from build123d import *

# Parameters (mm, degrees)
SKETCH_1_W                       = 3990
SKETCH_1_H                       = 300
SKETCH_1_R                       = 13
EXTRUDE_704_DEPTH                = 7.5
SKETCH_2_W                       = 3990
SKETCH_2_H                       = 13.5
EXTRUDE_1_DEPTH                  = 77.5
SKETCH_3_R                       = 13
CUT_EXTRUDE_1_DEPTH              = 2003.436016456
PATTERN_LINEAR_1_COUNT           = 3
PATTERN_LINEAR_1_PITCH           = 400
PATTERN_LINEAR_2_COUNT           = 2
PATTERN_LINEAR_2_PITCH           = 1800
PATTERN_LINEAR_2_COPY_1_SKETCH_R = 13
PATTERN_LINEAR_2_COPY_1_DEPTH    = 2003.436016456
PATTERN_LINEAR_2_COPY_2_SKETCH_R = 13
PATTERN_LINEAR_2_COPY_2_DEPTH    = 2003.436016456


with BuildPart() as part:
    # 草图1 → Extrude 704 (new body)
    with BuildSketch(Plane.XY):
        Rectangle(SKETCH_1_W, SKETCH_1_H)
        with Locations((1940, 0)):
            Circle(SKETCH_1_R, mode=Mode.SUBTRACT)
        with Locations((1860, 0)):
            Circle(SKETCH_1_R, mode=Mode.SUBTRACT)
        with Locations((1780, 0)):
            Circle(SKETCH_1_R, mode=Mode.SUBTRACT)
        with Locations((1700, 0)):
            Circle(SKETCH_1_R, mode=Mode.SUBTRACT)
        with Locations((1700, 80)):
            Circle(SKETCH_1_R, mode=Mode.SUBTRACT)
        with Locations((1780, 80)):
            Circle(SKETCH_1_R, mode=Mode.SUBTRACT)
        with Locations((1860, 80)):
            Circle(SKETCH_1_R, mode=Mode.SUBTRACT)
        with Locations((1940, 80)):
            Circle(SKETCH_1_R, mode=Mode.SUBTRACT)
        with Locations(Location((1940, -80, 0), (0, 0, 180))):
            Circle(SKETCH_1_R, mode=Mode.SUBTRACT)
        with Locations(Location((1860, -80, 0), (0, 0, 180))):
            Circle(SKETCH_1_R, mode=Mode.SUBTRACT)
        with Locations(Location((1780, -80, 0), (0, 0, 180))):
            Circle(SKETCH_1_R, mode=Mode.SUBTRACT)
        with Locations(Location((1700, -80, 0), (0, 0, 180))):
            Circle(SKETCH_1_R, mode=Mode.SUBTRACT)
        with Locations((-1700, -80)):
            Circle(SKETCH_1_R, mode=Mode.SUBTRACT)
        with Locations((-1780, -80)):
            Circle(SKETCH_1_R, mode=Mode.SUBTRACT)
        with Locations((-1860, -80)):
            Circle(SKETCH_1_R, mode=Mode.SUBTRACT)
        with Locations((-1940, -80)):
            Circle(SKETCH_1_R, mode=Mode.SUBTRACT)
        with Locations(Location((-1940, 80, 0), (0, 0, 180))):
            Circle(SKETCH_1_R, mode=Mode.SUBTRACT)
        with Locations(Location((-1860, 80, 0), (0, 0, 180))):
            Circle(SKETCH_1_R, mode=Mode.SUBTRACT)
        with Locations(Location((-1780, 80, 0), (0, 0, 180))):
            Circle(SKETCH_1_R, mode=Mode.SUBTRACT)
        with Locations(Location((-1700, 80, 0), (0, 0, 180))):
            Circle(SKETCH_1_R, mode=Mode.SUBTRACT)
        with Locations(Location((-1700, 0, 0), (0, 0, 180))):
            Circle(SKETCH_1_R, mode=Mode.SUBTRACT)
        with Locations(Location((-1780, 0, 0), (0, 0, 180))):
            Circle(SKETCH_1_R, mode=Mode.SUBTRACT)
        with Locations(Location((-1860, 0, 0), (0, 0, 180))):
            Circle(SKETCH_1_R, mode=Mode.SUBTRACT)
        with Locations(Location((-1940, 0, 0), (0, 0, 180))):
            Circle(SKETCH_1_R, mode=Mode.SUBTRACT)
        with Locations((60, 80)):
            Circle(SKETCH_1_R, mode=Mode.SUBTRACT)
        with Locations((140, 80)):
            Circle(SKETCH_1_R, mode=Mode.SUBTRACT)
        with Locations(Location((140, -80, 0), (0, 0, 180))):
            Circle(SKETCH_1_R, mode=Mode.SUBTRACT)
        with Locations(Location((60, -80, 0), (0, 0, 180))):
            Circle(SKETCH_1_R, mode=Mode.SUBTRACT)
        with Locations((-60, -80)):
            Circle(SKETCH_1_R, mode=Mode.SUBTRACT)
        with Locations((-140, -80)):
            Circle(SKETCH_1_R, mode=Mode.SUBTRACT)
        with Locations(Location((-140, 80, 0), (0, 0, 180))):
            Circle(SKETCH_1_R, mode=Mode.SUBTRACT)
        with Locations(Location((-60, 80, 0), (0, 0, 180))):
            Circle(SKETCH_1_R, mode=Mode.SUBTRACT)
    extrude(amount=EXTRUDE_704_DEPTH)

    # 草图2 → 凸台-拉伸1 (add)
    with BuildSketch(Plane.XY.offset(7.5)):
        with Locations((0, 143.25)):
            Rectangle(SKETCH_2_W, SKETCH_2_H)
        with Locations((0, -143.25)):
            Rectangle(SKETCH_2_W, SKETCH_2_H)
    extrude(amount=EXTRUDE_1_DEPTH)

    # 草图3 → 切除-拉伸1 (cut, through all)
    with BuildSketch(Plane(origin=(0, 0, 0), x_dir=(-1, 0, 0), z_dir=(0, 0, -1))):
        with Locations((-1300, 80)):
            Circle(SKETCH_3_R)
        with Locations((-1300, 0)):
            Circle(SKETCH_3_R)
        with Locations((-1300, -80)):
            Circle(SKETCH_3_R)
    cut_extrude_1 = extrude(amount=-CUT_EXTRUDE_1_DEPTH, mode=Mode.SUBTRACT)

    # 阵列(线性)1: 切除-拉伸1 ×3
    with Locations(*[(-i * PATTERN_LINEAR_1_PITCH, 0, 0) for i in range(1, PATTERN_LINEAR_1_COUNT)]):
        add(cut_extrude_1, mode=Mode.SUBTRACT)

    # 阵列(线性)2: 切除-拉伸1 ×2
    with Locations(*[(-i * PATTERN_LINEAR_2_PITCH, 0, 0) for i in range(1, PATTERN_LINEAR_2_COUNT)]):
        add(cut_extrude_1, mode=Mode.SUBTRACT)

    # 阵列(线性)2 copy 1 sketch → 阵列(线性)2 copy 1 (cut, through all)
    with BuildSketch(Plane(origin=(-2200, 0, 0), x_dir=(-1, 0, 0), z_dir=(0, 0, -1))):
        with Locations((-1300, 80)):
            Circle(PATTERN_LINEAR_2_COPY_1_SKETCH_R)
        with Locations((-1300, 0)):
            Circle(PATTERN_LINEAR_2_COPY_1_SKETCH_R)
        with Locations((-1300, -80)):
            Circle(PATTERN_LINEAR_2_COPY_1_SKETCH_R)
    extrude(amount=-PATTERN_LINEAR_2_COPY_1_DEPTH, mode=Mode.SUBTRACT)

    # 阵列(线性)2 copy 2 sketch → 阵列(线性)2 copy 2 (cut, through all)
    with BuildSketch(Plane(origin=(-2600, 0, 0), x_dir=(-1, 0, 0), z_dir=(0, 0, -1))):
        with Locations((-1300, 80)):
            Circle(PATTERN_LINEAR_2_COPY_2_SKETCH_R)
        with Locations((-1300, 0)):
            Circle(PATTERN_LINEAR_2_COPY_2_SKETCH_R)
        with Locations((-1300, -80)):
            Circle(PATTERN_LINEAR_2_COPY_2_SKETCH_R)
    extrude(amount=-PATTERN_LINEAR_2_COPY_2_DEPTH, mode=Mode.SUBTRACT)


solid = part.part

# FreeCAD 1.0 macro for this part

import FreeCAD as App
import Part
import Sketcher
from FreeCAD import Vector

doc = App.newDocument("Part")
params = doc.addObject("Spreadsheet::Sheet", "Params")
for row, (alias, value) in enumerate([
    ("sketch1_diameter", "26 mm"),
    ("sketch1_width", "3990 mm"),
    ("sketch1_height", "300 mm"),
    ("pad1_length", "7.5 mm"),
    ("sketch2_width", "3990 mm"),
    ("sketch2_height", "13.5 mm"),
    ("pad2_length", "77.5 mm"),
    ("sketch3_diameter", "26 mm"),
    ("linearpattern_pitch", "400 mm"),
    ("linearpattern2_pitch", "1800 mm"),
    ("sketch4_diameter", "26 mm"),
    ("sketch5_diameter", "26 mm"),
], start=1):
    params.set(f"A{row}", alias)
    params.set(f"B{row}", "=" + value)
    params.setAlias(f"B{row}", alias)

body = doc.addObject("PartDesign::Body", "Body")

sketch1 = body.newObject("Sketcher::SketchObject", "Sketch")
sketch1.AttachmentSupport = (doc.getObject("XY_Plane"), [""])
sketch1.MapMode = "FlatFace"
sketch1.addGeometry([
    Part.LineSegment(Vector(-1995, 150, 0), Vector(-1995, -150, 0)),
    Part.LineSegment(Vector(-1995, -150, 0), Vector(1995, -150, 0)),
    Part.LineSegment(Vector(1995, -150, 0), Vector(1995, 150, 0)),
    Part.LineSegment(Vector(1995, 150, 0), Vector(-1995, 150, 0)),
    Part.Circle(Vector(-1940, -80, 0), Vector(0, 0, 1), 13),
    Part.Circle(Vector(-1860, -80, 0), Vector(0, 0, 1), 13),
    Part.Circle(Vector(-1780, -80, 0), Vector(0, 0, 1), 13),
    Part.Circle(Vector(-1700, -80, 0), Vector(0, 0, 1), 13),
    Part.Circle(Vector(-140, -80, 0), Vector(0, 0, 1), 13),
    Part.Circle(Vector(-60, -80, 0), Vector(0, 0, 1), 13),
    Part.Circle(Vector(60, -80, 0), Vector(0, 0, 1), 13),
    Part.Circle(Vector(140, -80, 0), Vector(0, 0, 1), 13),
    Part.Circle(Vector(1700, -80, 0), Vector(0, 0, 1), 13),
    Part.Circle(Vector(1780, -80, 0), Vector(0, 0, 1), 13),
    Part.Circle(Vector(1860, -80, 0), Vector(0, 0, 1), 13),
    Part.Circle(Vector(1940, -80, 0), Vector(0, 0, 1), 13),
    Part.Circle(Vector(-1940, 0, 0), Vector(0, 0, 1), 13),
    Part.Circle(Vector(-1860, 0, 0), Vector(0, 0, 1), 13),
    Part.Circle(Vector(-1780, 0, 0), Vector(0, 0, 1), 13),
    Part.Circle(Vector(-1700, 0, 0), Vector(0, 0, 1), 13),
    Part.Circle(Vector(-1940, 80, 0), Vector(0, 0, 1), 13),
    Part.Circle(Vector(-1860, 80, 0), Vector(0, 0, 1), 13),
    Part.Circle(Vector(-1780, 80, 0), Vector(0, 0, 1), 13),
    Part.Circle(Vector(-1700, 80, 0), Vector(0, 0, 1), 13),
    Part.Circle(Vector(-140, 80, 0), Vector(0, 0, 1), 13),
    Part.Circle(Vector(-60, 80, 0), Vector(0, 0, 1), 13),
    Part.Circle(Vector(1700, 0, 0), Vector(0, 0, 1), 13),
    Part.Circle(Vector(1780, 0, 0), Vector(0, 0, 1), 13),
    Part.Circle(Vector(1860, 0, 0), Vector(0, 0, 1), 13),
    Part.Circle(Vector(1940, 0, 0), Vector(0, 0, 1), 13),
    Part.Circle(Vector(60, 80, 0), Vector(0, 0, 1), 13),
    Part.Circle(Vector(140, 80, 0), Vector(0, 0, 1), 13),
    Part.Circle(Vector(1700, 80, 0), Vector(0, 0, 1), 13),
    Part.Circle(Vector(1780, 80, 0), Vector(0, 0, 1), 13),
    Part.Circle(Vector(1860, 80, 0), Vector(0, 0, 1), 13),
    Part.Circle(Vector(1940, 80, 0), Vector(0, 0, 1), 13),
], False)
sketch1.addConstraint([
    Sketcher.Constraint("Coincident", 0, 2, 1, 1),
    Sketcher.Constraint("Coincident", 1, 2, 2, 1),
    Sketcher.Constraint("Coincident", 2, 2, 3, 1),
    Sketcher.Constraint("Coincident", 3, 2, 0, 1),
    Sketcher.Constraint("Vertical", 0),
    Sketcher.Constraint("Horizontal", 1),
    Sketcher.Constraint("Vertical", 2),
    Sketcher.Constraint("Horizontal", 3),
    Sketcher.Constraint("Equal", 4, 5),
    Sketcher.Constraint("Equal", 5, 6),
    Sketcher.Constraint("Equal", 6, 7),
    Sketcher.Constraint("Equal", 7, 8),
    Sketcher.Constraint("Equal", 8, 9),
    Sketcher.Constraint("Equal", 9, 10),
    Sketcher.Constraint("Equal", 10, 11),
    Sketcher.Constraint("Equal", 11, 12),
    Sketcher.Constraint("Equal", 12, 13),
    Sketcher.Constraint("Equal", 13, 14),
    Sketcher.Constraint("Equal", 14, 15),
    Sketcher.Constraint("Equal", 15, 16),
    Sketcher.Constraint("Equal", 16, 17),
    Sketcher.Constraint("Equal", 17, 18),
    Sketcher.Constraint("Equal", 18, 19),
    Sketcher.Constraint("Equal", 19, 20),
    Sketcher.Constraint("Equal", 20, 21),
    Sketcher.Constraint("Equal", 21, 22),
    Sketcher.Constraint("Equal", 22, 23),
    Sketcher.Constraint("Equal", 23, 24),
    Sketcher.Constraint("Equal", 24, 25),
    Sketcher.Constraint("Equal", 25, 26),
    Sketcher.Constraint("Equal", 26, 27),
    Sketcher.Constraint("Equal", 27, 28),
    Sketcher.Constraint("Equal", 28, 29),
    Sketcher.Constraint("Equal", 29, 30),
    Sketcher.Constraint("Equal", 30, 31),
    Sketcher.Constraint("Equal", 31, 32),
    Sketcher.Constraint("Equal", 32, 33),
    Sketcher.Constraint("Equal", 33, 34),
    Sketcher.Constraint("Equal", 34, 35),
    Sketcher.Constraint("Symmetric", 15, 3, 20, 3, -1, 1),
    Sketcher.Constraint("Symmetric", 14, 3, 21, 3, -1, 1),
    Sketcher.Constraint("Symmetric", 13, 3, 22, 3, -1, 1),
    Sketcher.Constraint("Symmetric", 12, 3, 23, 3, -1, 1),
    Sketcher.Constraint("Symmetric", 11, 3, 24, 3, -1, 1),
    Sketcher.Constraint("Symmetric", 10, 3, 25, 3, -1, 1),
    Sketcher.Constraint("Symmetric", 19, 3, 26, 3, -1, 1),
    Sketcher.Constraint("Symmetric", 18, 3, 27, 3, -1, 1),
    Sketcher.Constraint("Symmetric", 17, 3, 28, 3, -1, 1),
    Sketcher.Constraint("Symmetric", 16, 3, 29, 3, -1, 1),
    Sketcher.Constraint("Symmetric", 9, 3, 30, 3, -1, 1),
    Sketcher.Constraint("Symmetric", 8, 3, 31, 3, -1, 1),
    Sketcher.Constraint("Symmetric", 7, 3, 32, 3, -1, 1),
    Sketcher.Constraint("Symmetric", 6, 3, 33, 3, -1, 1),
    Sketcher.Constraint("Symmetric", 5, 3, 34, 3, -1, 1),
    Sketcher.Constraint("Symmetric", 4, 3, 35, 3, -1, 1),
    Sketcher.Constraint("Symmetric", 0, 2, 2, 2, -1, 1),
    Sketcher.Constraint("Symmetric", 9, 3, 10, 3, -2),
    Sketcher.Constraint("Symmetric", 8, 3, 11, 3, -2),
    Sketcher.Constraint("Symmetric", 7, 3, 12, 3, -2),
    Sketcher.Constraint("Symmetric", 6, 3, 13, 3, -2),
    Sketcher.Constraint("Symmetric", 5, 3, 14, 3, -2),
    Sketcher.Constraint("Symmetric", 4, 3, 15, 3, -2),
    Sketcher.Constraint("PointOnObject", 16, 3, -1),
    Sketcher.Constraint("PointOnObject", 17, 3, -1),
    Sketcher.Constraint("PointOnObject", 18, 3, -1),
    Sketcher.Constraint("PointOnObject", 19, 3, -1),
    Sketcher.Constraint("Horizontal", 4, 3, 5, 3),
    Sketcher.Constraint("Horizontal", 5, 3, 6, 3),
    Sketcher.Constraint("Horizontal", 6, 3, 7, 3),
    Sketcher.Constraint("Horizontal", 7, 3, 8, 3),
    Sketcher.Constraint("Horizontal", 8, 3, 9, 3),
    Sketcher.Constraint("Vertical", 4, 3, 16, 3),
    Sketcher.Constraint("Vertical", 5, 3, 17, 3),
    Sketcher.Constraint("Vertical", 6, 3, 18, 3),
    Sketcher.Constraint("Vertical", 7, 3, 19, 3),
    Sketcher.Constraint("Diameter", 4, 26.0),
    Sketcher.Constraint("DistanceX", 1, 1, 1, 2, 3990.0),
    Sketcher.Constraint("DistanceY", 0, 2, 0, 1, 300.0),
    Sketcher.Constraint("DistanceX", 4, 3, -1, 1, 1940.0),
    Sketcher.Constraint("DistanceY", 4, 3, -1, 1, 80.0),
    Sketcher.Constraint("DistanceX", 5, 3, -1, 1, 1860.0),
    Sketcher.Constraint("DistanceX", 6, 3, -1, 1, 1780.0),
    Sketcher.Constraint("DistanceX", 7, 3, -1, 1, 1700.0),
    Sketcher.Constraint("DistanceX", 8, 3, -1, 1, 140.0),
    Sketcher.Constraint("DistanceX", 9, 3, -1, 1, 60.0),
])
sketch1.setExpression("Constraints[75]", "Params.sketch1_diameter")
sketch1.setExpression("Constraints[76]", "Params.sketch1_width")
sketch1.setExpression("Constraints[77]", "Params.sketch1_height")
pad1 = body.newObject("PartDesign::Pad", "Pad")
pad1.Profile = sketch1
pad1.setExpression("Length", "Params.pad1_length")

sketch2 = body.newObject("Sketcher::SketchObject", "Sketch001")
sketch2.AttachmentSupport = (doc.getObject("XY_Plane"), [""])
sketch2.MapMode = "FlatFace"
sketch2.AttachmentOffset = App.Placement(Vector(0, 0, 7.5), App.Rotation())
sketch2.addGeometry([
    Part.LineSegment(Vector(-1995, 150, 0), Vector(-1995, 136.5, 0)),
    Part.LineSegment(Vector(-1995, 136.5, 0), Vector(1995, 136.5, 0)),
    Part.LineSegment(Vector(1995, 136.5, 0), Vector(1995, 150, 0)),
    Part.LineSegment(Vector(1995, 150, 0), Vector(-1995, 150, 0)),
    Part.LineSegment(Vector(-1995, -136.5, 0), Vector(-1995, -150, 0)),
    Part.LineSegment(Vector(-1995, -150, 0), Vector(1995, -150, 0)),
    Part.LineSegment(Vector(1995, -150, 0), Vector(1995, -136.5, 0)),
    Part.LineSegment(Vector(1995, -136.5, 0), Vector(-1995, -136.5, 0)),
], False)
sketch2.addConstraint([
    Sketcher.Constraint("Coincident", 0, 2, 1, 1),
    Sketcher.Constraint("Coincident", 1, 2, 2, 1),
    Sketcher.Constraint("Coincident", 2, 2, 3, 1),
    Sketcher.Constraint("Coincident", 3, 2, 0, 1),
    Sketcher.Constraint("Coincident", 4, 2, 5, 1),
    Sketcher.Constraint("Coincident", 5, 2, 6, 1),
    Sketcher.Constraint("Coincident", 6, 2, 7, 1),
    Sketcher.Constraint("Coincident", 7, 2, 4, 1),
    Sketcher.Constraint("Vertical", 0),
    Sketcher.Constraint("Horizontal", 1),
    Sketcher.Constraint("Vertical", 2),
    Sketcher.Constraint("Horizontal", 3),
    Sketcher.Constraint("Vertical", 4),
    Sketcher.Constraint("Horizontal", 5),
    Sketcher.Constraint("Vertical", 6),
    Sketcher.Constraint("Horizontal", 7),
    Sketcher.Constraint("Symmetric", 2, 2, 4, 2, -1, 1),
    Sketcher.Constraint("Symmetric", 0, 2, 6, 2, -1, 1),
    Sketcher.Constraint("Vertical", 3, 2, 4, 2),
    Sketcher.Constraint("DistanceX", 1, 1, 1, 2, 3990.0),
    Sketcher.Constraint("DistanceY", 0, 2, 0, 1, 13.5),
    Sketcher.Constraint("DistanceY", -1, 1, 2, 2, 150.0),
])
sketch2.setExpression("Constraints[19]", "Params.sketch2_width")
sketch2.setExpression("Constraints[20]", "Params.sketch2_height")
pad2 = body.newObject("PartDesign::Pad", "Pad001")
pad2.Profile = sketch2
pad2.setExpression("Length", "Params.pad2_length")

sketch3 = body.newObject("Sketcher::SketchObject", "Sketch002")
sketch3.AttachmentSupport = (doc.getObject("XY_Plane"), [""])
sketch3.MapMode = "FlatFace"
sketch3.addGeometry([
    Part.Circle(Vector(1300, 80, 0), Vector(0, 0, 1), 13),
    Part.Circle(Vector(1300, 0, 0), Vector(0, 0, 1), 13),
    Part.Circle(Vector(1300, -80, 0), Vector(0, 0, 1), 13),
], False)
sketch3.addConstraint([
    Sketcher.Constraint("Equal", 0, 1),
    Sketcher.Constraint("Equal", 1, 2),
    Sketcher.Constraint("Symmetric", 0, 3, 2, 3, -1),
    Sketcher.Constraint("PointOnObject", 1, 3, -1),
    Sketcher.Constraint("Vertical", 0, 3, 1, 3),
    Sketcher.Constraint("Diameter", 0, 26.0),
    Sketcher.Constraint("DistanceX", -1, 1, 0, 3, 1300.0),
    Sketcher.Constraint("DistanceY", -1, 1, 0, 3, 80.0),
])
sketch3.setExpression("Constraints[5]", "Params.sketch3_diameter")
pocket1 = body.newObject("PartDesign::Pocket", "Pocket")
pocket1.Profile = sketch3
pocket1.Type = "ThroughAll"
pocket1.Reversed = True
doc.recompute()

linearpattern = body.newObject("PartDesign::LinearPattern", "LinearPattern")
linearpattern.Originals = [pocket1]
linearpattern.Direction = (doc.getObject("X_Axis"), [""])
linearpattern.Mode = "offset"
linearpattern.setExpression("Offset", "Params.linearpattern_pitch")
linearpattern.Occurrences = 3
linearpattern.Reversed = True
body.Tip = linearpattern
doc.recompute()

linearpattern2 = body.newObject("PartDesign::LinearPattern", "LinearPattern001")
linearpattern2.Originals = [pocket1]
linearpattern2.Direction = (doc.getObject("X_Axis"), [""])
linearpattern2.Mode = "offset"
linearpattern2.setExpression("Offset", "Params.linearpattern2_pitch")
linearpattern2.Occurrences = 2
linearpattern2.Reversed = True
body.Tip = linearpattern2

sketch4 = body.newObject("Sketcher::SketchObject", "Sketch003")
sketch4.AttachmentSupport = (doc.getObject("XY_Plane"), [""])
sketch4.MapMode = "FlatFace"
sketch4.addGeometry([
    Part.Circle(Vector(-900, 80, 0), Vector(0, 0, 1), 13),
    Part.Circle(Vector(-900, 0, 0), Vector(0, 0, 1), 13),
    Part.Circle(Vector(-900, -80, 0), Vector(0, 0, 1), 13),
], False)
sketch4.addConstraint([
    Sketcher.Constraint("Equal", 0, 1),
    Sketcher.Constraint("Equal", 1, 2),
    Sketcher.Constraint("Symmetric", 0, 3, 2, 3, -1),
    Sketcher.Constraint("PointOnObject", 1, 3, -1),
    Sketcher.Constraint("Vertical", 0, 3, 1, 3),
    Sketcher.Constraint("Diameter", 0, 26.0),
    Sketcher.Constraint("DistanceX", 0, 3, -1, 1, 900.0),
    Sketcher.Constraint("DistanceY", -1, 1, 0, 3, 80.0),
])
sketch4.setExpression("Constraints[5]", "Params.sketch4_diameter")
pocket2 = body.newObject("PartDesign::Pocket", "Pocket001")
pocket2.Profile = sketch4
pocket2.Type = "ThroughAll"
pocket2.Reversed = True

sketch5 = body.newObject("Sketcher::SketchObject", "Sketch004")
sketch5.AttachmentSupport = (doc.getObject("XY_Plane"), [""])
sketch5.MapMode = "FlatFace"
sketch5.addGeometry([
    Part.Circle(Vector(-1300, 80, 0), Vector(0, 0, 1), 13),
    Part.Circle(Vector(-1300, 0, 0), Vector(0, 0, 1), 13),
    Part.Circle(Vector(-1300, -80, 0), Vector(0, 0, 1), 13),
], False)
sketch5.addConstraint([
    Sketcher.Constraint("Equal", 0, 1),
    Sketcher.Constraint("Equal", 1, 2),
    Sketcher.Constraint("Symmetric", 0, 3, 2, 3, -1),
    Sketcher.Constraint("PointOnObject", 1, 3, -1),
    Sketcher.Constraint("Vertical", 0, 3, 1, 3),
    Sketcher.Constraint("Diameter", 0, 26.0),
    Sketcher.Constraint("DistanceX", 0, 3, -1, 1, 1300.0),
    Sketcher.Constraint("DistanceY", -1, 1, 0, 3, 80.0),
])
sketch5.setExpression("Constraints[5]", "Params.sketch5_diameter")
pocket3 = body.newObject("PartDesign::Pocket", "Pocket002")
pocket3.Profile = sketch5
pocket3.Type = "ThroughAll"
pocket3.Reversed = True

doc.recompute()
